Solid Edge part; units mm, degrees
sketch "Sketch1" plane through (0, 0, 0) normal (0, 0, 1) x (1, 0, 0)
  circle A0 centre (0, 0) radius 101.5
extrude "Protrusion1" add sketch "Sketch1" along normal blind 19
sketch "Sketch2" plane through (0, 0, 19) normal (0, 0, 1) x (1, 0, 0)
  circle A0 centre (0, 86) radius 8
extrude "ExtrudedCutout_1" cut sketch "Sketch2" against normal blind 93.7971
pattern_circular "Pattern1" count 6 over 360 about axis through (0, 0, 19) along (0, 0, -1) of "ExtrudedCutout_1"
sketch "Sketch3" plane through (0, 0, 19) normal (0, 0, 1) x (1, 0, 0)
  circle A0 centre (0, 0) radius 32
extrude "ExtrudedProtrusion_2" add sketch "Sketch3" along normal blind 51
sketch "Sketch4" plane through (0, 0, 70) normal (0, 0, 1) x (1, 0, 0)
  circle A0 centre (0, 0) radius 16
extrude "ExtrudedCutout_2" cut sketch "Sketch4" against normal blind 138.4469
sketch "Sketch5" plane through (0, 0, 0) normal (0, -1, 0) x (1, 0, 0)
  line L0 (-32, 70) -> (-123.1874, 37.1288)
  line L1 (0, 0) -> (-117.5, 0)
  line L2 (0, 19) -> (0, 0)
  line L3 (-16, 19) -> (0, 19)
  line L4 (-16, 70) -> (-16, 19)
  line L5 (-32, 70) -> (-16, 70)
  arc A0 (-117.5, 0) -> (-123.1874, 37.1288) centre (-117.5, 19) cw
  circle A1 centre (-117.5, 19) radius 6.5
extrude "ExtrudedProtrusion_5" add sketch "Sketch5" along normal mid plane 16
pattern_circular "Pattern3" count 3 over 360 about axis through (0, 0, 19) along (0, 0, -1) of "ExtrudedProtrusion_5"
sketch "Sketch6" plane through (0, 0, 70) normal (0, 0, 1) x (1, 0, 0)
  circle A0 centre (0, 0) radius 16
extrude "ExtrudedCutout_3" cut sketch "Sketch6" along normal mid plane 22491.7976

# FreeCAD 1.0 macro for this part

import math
import FreeCAD as App
import Part
import Sketcher

V = App.Vector

doc = App.newDocument("Part")
body = doc.addObject("PartDesign::Body", "Body")

# Sketch on XY plane
sketch1 = body.newObject("Sketcher::SketchObject", "Sketch")
sketch1.AttachmentSupport = (doc.getObject("XY_Plane"), [""])
sketch1.MapMode = "FlatFace"
sketch1.addGeometry(Part.Circle(V(0, 0, 0), V(0, 0, 1), 101.5), False)
sketch1.addConstraint([
    Sketcher.Constraint("Coincident", 0, 3, -1, 1),
    Sketcher.Constraint("Diameter", 0, 203.0),
])
pad1 = body.newObject("PartDesign::Pad", "Pad")
pad1.Profile = sketch1
pad1.Length = 19

# Sketch on XY plane
sketch2 = body.newObject("Sketcher::SketchObject", "Sketch001")
sketch2.AttachmentSupport = (doc.getObject("XY_Plane"), [""])
sketch2.MapMode = "FlatFace"
sketch2.AttachmentOffset = App.Placement(V(0, 0, 19), App.Rotation())
sketch2.addGeometry(Part.Circle(V(0, 86, 0), V(0, 0, 1), 8), False)
sketch2.addConstraint([
    Sketcher.Constraint("PointOnObject", 0, 3, -2),
    Sketcher.Constraint("Diameter", 0, 16.0),
    Sketcher.Constraint("DistanceY", -1, 1, 0, 3, 86.0),
])
pocket1 = body.newObject("PartDesign::Pocket", "Pocket")
pocket1.Profile = sketch2
pocket1.Length = 93.7971
doc.recompute()

polarpattern = body.newObject("PartDesign::PolarPattern", "PolarPattern")
polarpattern.Originals = [pocket1]
polarpattern.Axis = (doc.getObject("Z_Axis"), [""])
polarpattern.Angle = 360
polarpattern.Occurrences = 6
body.Tip = polarpattern

# Sketch on XY plane
sketch3 = body.newObject("Sketcher::SketchObject", "Sketch002")
sketch3.AttachmentSupport = (doc.getObject("XY_Plane"), [""])
sketch3.MapMode = "FlatFace"
sketch3.AttachmentOffset = App.Placement(V(0, 0, 19), App.Rotation())
sketch3.addGeometry(Part.Circle(V(0, 0, 0), V(0, 0, 1), 32), False)
sketch3.addConstraint([
    Sketcher.Constraint("Coincident", 0, 3, -1, 1),
    Sketcher.Constraint("Diameter", 0, 64.0),
])
pad2 = body.newObject("PartDesign::Pad", "Pad001")
pad2.Profile = sketch3
pad2.Length = 51

# Sketch on XY plane
sketch4 = body.newObject("Sketcher::SketchObject", "Sketch003")
sketch4.AttachmentSupport = (doc.getObject("XY_Plane"), [""])
sketch4.MapMode = "FlatFace"
sketch4.AttachmentOffset = App.Placement(V(0, 0, 70), App.Rotation())
sketch4.addGeometry(Part.Circle(V(0, 0, 0), V(0, 0, 1), 16), False)
sketch4.addConstraint([
    Sketcher.Constraint("Coincident", 0, 3, -1, 1),
    Sketcher.Constraint("Diameter", 0, 32.0),
])
pocket2 = body.newObject("PartDesign::Pocket", "Pocket001")
pocket2.Profile = sketch4
pocket2.Length = 138.4469

# Sketch on XZ plane
sketch5 = body.newObject("Sketcher::SketchObject", "Sketch004")
sketch5.AttachmentSupport = (doc.getObject("XZ_Plane"), [""])
sketch5.MapMode = "FlatFace"
sketch5.addGeometry([
    Part.LineSegment(V(-16, 70, 0), V(-32, 70, 0)),  # 0
    Part.LineSegment(V(-32, 70, 0), V(-123.1874, 37.1288, 0)),  # 1
    Part.ArcOfCircle(Part.Circle(V(-117.5, 19, 0), V(0, 0, 1), 19), math.radians(107.417779), math.radians(270)),  # 2
    Part.LineSegment(V(-117.5, 0, 0), V(0, 0, 0)),  # 3
    Part.LineSegment(V(0, 0, 0), V(0, 19, 0)),  # 4
    Part.LineSegment(V(0, 19, 0), V(-16, 19, 0)),  # 5
    Part.LineSegment(V(-16, 19, 0), V(-16, 70, 0)),  # 6
    Part.Circle(V(-117.5, 19, 0), V(0, 0, 1), 6.5),  # 7
], False)
sketch5.addConstraint([
    Sketcher.Constraint("Coincident", 0, 2, 1, 1),
    Sketcher.Constraint("Coincident", 1, 2, 2, 1),
    Sketcher.Constraint("Tangent", 2, 2, 3, 1),
    Sketcher.Constraint("Coincident", 3, 2, 4, 1),
    Sketcher.Constraint("Coincident", 4, 2, 5, 1),
    Sketcher.Constraint("Coincident", 5, 2, 6, 1),
    Sketcher.Constraint("Coincident", 6, 2, 0, 1),
    Sketcher.Constraint("Horizontal", 0),
    Sketcher.Constraint("Horizontal", 3),
    Sketcher.Constraint("Vertical", 4),
    Sketcher.Constraint("Horizontal", 5),
    Sketcher.Constraint("Vertical", 6),
    Sketcher.Constraint("Coincident", 3, 2, -1, 1),
    Sketcher.Constraint("Coincident", 7, 3, 2, 3),
    Sketcher.Constraint("Horizontal", 7, 3, 4, 2),
    Sketcher.Constraint("Equal", 0, 5),
    Sketcher.Constraint("Diameter", 7, 13.0),
    Sketcher.Constraint("Radius", 2, 19.0),
    Sketcher.Constraint("DistanceX", 0, 2, 0, 1, 16.0),
    Sketcher.Constraint("DistanceY", 6, 1, 6, 2, 51.0),
    Sketcher.Constraint("DistanceX", 3, 1, 3, 2, 117.5),
    Sketcher.Constraint("Distance", 1, 96.9312),
])
pad3 = body.newObject("PartDesign::Pad", "Pad002")
pad3.Profile = sketch5
pad3.Length = 16
pad3.Midplane = True
doc.recompute()

polarpattern2 = body.newObject("PartDesign::PolarPattern", "PolarPattern001")
polarpattern2.Originals = [pad3]
polarpattern2.Axis = (doc.getObject("Z_Axis"), [""])
polarpattern2.Angle = 360
polarpattern2.Occurrences = 3
body.Tip = polarpattern2

# Sketch on XY plane
sketch6 = body.newObject("Sketcher::SketchObject", "Sketch005")
sketch6.AttachmentSupport = (doc.getObject("XY_Plane"), [""])
sketch6.MapMode = "FlatFace"
sketch6.AttachmentOffset = App.Placement(V(0, 0, 70), App.Rotation())
sketch6.addGeometry(Part.Circle(V(0, 0, 0), V(0, 0, 1), 16), False)
sketch6.addConstraint([
    Sketcher.Constraint("Coincident", 0, 3, -1, 1),
    Sketcher.Constraint("Diameter", 0, 32.0),
])
pocket3 = body.newObject("PartDesign::Pocket", "Pocket002")
pocket3.Profile = sketch6
pocket3.Length = 22491.7976
pocket3.Midplane = True

doc.recompute()
